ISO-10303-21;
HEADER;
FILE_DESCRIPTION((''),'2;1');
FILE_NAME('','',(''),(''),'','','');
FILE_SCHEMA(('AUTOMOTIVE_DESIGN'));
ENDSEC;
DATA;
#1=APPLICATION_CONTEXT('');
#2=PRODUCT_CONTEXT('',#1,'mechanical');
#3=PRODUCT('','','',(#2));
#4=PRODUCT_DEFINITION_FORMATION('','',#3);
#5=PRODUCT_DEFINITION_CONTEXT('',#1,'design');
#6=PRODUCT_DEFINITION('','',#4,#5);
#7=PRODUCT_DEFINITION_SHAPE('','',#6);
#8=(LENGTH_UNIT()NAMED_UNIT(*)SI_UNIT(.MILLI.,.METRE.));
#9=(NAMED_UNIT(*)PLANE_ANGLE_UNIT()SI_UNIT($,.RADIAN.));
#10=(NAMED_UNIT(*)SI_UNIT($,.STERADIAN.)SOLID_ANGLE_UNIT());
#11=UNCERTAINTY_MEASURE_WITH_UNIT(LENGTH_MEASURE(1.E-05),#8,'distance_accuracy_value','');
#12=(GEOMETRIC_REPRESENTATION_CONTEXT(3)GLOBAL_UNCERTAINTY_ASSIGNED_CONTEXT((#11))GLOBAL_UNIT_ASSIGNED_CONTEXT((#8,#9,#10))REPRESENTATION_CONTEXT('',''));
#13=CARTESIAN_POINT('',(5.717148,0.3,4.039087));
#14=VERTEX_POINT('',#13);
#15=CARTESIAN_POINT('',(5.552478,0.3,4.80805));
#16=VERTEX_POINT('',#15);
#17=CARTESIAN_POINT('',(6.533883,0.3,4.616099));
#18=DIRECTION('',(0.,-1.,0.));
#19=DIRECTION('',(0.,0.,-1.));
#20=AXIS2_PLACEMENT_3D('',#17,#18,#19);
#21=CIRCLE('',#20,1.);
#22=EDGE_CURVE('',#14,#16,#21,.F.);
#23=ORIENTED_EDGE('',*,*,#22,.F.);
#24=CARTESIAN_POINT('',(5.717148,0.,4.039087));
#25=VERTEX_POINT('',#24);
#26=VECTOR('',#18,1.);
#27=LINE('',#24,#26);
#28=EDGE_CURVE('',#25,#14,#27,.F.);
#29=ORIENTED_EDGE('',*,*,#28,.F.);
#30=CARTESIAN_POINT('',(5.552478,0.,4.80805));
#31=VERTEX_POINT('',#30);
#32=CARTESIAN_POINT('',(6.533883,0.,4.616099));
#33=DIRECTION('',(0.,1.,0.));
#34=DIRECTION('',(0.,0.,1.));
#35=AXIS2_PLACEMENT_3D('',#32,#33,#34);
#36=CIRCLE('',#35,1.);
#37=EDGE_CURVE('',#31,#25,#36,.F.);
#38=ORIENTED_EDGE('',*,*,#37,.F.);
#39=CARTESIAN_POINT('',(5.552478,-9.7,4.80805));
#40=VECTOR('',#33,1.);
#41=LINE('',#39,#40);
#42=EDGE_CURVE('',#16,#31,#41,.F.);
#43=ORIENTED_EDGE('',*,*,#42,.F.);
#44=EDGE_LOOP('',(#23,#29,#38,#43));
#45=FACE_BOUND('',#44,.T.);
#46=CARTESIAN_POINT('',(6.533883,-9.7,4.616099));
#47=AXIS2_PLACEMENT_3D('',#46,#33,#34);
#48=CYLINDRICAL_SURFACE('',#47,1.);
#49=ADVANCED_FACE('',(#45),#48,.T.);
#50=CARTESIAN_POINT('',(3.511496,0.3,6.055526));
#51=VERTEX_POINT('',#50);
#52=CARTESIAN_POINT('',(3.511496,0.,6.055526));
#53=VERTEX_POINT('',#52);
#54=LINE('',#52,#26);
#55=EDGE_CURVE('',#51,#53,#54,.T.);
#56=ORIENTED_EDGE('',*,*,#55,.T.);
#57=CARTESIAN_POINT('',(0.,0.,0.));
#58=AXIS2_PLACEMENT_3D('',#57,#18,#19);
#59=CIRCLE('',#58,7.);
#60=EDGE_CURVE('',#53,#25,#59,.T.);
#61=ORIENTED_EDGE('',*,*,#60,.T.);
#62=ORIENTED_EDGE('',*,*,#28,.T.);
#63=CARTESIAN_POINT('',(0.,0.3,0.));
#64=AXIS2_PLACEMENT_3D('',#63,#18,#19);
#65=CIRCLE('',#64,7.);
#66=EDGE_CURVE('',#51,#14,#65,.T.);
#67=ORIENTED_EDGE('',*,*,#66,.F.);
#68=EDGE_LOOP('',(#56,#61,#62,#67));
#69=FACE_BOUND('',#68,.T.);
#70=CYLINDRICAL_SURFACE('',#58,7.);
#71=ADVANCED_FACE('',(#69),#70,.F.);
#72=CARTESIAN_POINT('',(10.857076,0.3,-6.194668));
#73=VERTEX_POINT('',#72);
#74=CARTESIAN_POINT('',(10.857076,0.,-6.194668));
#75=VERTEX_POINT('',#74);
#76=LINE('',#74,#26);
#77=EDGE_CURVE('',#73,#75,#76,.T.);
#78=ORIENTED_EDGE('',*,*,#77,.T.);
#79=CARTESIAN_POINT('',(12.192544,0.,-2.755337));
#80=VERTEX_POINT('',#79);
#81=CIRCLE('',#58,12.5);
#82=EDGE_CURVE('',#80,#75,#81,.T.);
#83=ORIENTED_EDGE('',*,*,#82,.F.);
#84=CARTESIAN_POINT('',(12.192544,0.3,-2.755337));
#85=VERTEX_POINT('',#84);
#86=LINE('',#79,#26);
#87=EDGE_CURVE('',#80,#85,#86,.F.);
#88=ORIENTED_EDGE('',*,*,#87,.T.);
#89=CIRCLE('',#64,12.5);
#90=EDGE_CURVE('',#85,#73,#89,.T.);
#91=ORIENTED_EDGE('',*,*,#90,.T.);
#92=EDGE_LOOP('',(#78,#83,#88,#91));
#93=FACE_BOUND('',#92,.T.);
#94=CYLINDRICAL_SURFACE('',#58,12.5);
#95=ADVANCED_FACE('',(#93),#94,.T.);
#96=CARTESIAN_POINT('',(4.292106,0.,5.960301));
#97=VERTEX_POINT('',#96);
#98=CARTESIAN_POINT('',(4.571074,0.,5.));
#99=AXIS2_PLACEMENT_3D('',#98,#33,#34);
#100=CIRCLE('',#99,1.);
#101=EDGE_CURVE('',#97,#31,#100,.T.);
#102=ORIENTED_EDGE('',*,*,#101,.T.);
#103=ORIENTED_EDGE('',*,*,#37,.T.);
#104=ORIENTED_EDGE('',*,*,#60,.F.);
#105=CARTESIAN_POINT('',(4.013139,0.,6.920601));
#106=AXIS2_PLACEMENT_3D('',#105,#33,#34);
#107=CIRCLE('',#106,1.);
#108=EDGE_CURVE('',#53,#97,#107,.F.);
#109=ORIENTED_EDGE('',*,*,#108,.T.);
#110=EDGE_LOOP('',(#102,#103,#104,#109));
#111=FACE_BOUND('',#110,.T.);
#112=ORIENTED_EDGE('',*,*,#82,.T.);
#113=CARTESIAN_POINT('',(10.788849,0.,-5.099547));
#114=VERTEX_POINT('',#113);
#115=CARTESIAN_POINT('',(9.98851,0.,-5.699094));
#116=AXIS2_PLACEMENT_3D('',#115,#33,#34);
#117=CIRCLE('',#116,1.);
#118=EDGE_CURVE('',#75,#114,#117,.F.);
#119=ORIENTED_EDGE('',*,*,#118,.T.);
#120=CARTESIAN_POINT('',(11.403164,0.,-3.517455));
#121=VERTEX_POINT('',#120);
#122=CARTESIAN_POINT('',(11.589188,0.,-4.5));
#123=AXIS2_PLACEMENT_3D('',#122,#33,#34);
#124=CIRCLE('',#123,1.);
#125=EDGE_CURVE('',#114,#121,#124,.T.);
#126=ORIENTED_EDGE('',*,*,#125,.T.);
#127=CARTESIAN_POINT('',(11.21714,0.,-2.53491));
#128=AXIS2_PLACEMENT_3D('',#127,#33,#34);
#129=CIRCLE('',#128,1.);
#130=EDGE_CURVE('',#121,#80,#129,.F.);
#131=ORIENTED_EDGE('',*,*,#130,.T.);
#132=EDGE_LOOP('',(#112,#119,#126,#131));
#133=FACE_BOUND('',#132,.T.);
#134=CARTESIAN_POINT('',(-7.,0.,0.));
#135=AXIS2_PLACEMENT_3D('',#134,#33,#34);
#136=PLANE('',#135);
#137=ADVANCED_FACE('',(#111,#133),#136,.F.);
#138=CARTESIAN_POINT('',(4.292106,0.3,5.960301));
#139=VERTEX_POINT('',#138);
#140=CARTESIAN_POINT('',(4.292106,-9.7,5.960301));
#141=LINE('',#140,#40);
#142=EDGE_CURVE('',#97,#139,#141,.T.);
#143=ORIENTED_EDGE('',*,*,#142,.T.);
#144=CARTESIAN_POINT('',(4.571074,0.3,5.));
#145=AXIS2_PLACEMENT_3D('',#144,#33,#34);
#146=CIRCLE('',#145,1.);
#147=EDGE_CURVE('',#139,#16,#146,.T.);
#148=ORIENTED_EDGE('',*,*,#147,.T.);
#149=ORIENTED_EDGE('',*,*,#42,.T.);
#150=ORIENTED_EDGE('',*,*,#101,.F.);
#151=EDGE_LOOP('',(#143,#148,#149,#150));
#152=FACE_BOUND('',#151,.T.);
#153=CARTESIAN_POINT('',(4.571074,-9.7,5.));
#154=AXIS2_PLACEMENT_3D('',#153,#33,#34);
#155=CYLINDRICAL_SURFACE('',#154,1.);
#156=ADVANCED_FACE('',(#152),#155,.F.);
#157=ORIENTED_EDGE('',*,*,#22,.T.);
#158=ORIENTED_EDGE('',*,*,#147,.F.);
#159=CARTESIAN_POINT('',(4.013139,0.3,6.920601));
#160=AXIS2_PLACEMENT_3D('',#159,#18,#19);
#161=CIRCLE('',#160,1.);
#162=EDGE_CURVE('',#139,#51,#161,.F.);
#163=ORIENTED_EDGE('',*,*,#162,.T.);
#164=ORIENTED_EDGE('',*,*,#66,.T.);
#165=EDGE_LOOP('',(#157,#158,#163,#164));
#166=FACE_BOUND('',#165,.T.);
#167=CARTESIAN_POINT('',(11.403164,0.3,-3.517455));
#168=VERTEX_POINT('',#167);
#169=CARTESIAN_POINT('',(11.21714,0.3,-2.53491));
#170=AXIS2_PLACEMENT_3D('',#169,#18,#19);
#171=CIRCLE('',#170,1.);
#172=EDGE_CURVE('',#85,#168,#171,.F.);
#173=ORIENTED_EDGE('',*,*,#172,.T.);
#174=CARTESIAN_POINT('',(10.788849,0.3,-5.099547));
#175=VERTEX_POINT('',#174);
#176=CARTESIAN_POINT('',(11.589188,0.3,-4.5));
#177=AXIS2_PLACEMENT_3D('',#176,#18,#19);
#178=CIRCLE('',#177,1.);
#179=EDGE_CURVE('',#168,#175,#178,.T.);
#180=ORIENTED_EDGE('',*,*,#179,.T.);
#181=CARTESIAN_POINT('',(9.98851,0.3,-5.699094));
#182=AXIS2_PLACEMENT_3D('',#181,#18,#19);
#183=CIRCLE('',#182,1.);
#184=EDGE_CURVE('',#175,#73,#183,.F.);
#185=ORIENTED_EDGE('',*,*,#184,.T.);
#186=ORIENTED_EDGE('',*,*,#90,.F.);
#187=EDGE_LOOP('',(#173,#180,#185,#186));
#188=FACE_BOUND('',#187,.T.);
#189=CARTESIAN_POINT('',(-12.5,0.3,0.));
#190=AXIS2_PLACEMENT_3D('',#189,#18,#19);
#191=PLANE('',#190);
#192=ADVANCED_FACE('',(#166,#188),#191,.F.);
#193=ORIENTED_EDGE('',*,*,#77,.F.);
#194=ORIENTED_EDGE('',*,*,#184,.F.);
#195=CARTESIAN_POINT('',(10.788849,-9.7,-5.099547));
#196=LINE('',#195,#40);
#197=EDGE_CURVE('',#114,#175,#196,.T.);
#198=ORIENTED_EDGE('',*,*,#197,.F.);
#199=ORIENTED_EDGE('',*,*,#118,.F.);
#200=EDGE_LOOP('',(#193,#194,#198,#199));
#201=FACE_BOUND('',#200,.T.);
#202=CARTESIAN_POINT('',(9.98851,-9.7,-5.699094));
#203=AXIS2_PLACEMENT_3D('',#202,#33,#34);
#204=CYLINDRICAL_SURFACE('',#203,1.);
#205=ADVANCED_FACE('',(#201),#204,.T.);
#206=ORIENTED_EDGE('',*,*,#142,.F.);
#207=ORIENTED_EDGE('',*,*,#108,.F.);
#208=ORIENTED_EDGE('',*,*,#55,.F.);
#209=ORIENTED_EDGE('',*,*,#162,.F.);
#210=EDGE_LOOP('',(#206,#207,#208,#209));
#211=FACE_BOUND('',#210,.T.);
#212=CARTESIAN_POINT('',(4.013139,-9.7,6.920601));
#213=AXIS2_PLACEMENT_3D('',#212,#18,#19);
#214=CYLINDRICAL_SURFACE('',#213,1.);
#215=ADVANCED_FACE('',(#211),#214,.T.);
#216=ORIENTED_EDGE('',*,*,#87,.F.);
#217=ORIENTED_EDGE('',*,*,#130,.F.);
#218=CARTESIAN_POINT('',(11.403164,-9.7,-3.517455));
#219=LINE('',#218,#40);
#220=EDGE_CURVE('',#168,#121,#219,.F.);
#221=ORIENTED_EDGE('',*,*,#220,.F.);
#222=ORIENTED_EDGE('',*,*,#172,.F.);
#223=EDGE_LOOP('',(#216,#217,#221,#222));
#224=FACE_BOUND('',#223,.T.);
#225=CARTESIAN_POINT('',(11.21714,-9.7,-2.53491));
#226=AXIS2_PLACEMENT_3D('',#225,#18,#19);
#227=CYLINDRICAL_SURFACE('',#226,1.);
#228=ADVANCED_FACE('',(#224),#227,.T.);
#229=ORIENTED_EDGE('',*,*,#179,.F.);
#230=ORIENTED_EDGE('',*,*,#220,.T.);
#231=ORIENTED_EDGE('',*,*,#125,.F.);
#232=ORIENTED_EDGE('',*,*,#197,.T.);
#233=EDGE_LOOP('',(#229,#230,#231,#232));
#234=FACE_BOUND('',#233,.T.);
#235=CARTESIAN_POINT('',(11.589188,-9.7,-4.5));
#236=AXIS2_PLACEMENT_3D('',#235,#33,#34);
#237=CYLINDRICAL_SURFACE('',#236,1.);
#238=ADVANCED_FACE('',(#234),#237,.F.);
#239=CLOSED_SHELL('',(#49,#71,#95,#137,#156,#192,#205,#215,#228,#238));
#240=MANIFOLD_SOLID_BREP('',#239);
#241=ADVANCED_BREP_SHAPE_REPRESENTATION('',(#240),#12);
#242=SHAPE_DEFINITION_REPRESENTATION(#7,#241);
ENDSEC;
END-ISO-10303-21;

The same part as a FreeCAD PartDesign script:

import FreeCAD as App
import Part
import Sketcher
Q = App.Units.Quantity


def edges_at(feature, points):
    """Names of the edges that pass closest to the given points."""
    edges = feature.Shape.Edges
    near = lambda p: min(range(len(edges)), key=lambda i: edges[i].distToShape(Part.Vertex(*p))[0])
    return sorted({f"Edge{near(p) + 1}" for p in points})


def add_polygon(sketch, points):
    """Adds a closed chain of lines whose ends are joined by coincident constraints."""
    first, n = sketch.GeometryCount, len(points)
    for a, b in zip(points, points[1:] + points[:1]):
        sketch.addGeometry(Part.LineSegment(App.Vector(*a, 0), App.Vector(*b, 0)), False)
    for i in range(n):
        sketch.addConstraint(Sketcher.Constraint("Coincident", first + i, 2, first + (i + 1) % n, 1))

doc = App.newDocument("Part")
params = doc.addObject("Spreadsheet::Sheet", "Params")
for row, (alias, value) in enumerate([
    ("sketch1_width", "5.5 mm"),
    ("sketch1_height", "0.3 mm"),
    ("revolution_angle", "360 deg"),
    ("sketch2_diameter", "2 mm"),
    ("pocket1_length", "10 mm"),
    ("fillet_radius", "1 mm"),
], start=1):
    params.set(f"A{row}", alias)
    params.set(f"B{row}", "=" + value)
    params.setAlias(f"B{row}", alias)

body = doc.addObject("PartDesign::Body", "Body")

# Sketch on XY plane
sketch1 = doc.addObject("Sketcher::SketchObject", "Sketch")
body.addObject(sketch1)
sketch1.AttachmentSupport = (doc.XY_Plane, [""])
sketch1.MapMode = "FlatFace"
add_polygon(sketch1, [(-12.5, 0.3), (-12.5, 0), (-7, 0), (-7, 0.3)])  # lines 0-3
sketch1.addConstraint([
    Sketcher.Constraint("Vertical", 0),
    Sketcher.Constraint("Horizontal", 1),
    Sketcher.Constraint("Vertical", 2),
    Sketcher.Constraint("Horizontal", 3),
    Sketcher.Constraint("PointOnObject", 0, 2, -1),
    Sketcher.Constraint("DistanceX", 1, 1, 1, 2, Q("5.5 mm")),
    Sketcher.Constraint("DistanceY", 0, 2, 0, 1, Q("0.3 mm")),
    Sketcher.Constraint("DistanceX", 1, 2, -1, 1, Q("7 mm")),
])
sketch1.setExpression("Constraints[9]", "Params.sketch1_width")
sketch1.setExpression("Constraints[10]", "Params.sketch1_height")
revolution = doc.addObject("PartDesign::Revolution", "Revolution")
body.addObject(revolution)
revolution.Profile = sketch1
revolution.ReferenceAxis = (sketch1, ["V_Axis"])
revolution.setExpression("Angle", "Params.revolution_angle")

# Sketch on XZ plane
sketch2 = doc.addObject("Sketcher::SketchObject", "Sketch001")
body.addObject(sketch2)
sketch2.AttachmentSupport = (doc.XZ_Plane, [""])
sketch2.MapMode = "FlatFace"
sketch2.AttachmentOffset = App.Placement(App.Vector(0, 0, -0.3), App.Rotation())
sketch2.addGeometry([
    Part.Circle(App.Vector(4.571074, 5, 0), App.Vector(0, 0, 1), 1),
    Part.Circle(App.Vector(11.589188, -4.5, 0), App.Vector(0, 0, 1), 1),
], False)
sketch2.addConstraint([
    Sketcher.Constraint("Equal", 0, 1),
    Sketcher.Constraint("Diameter", 0, Q("2 mm")),
    Sketcher.Constraint("DistanceY", -1, 1, 0, 3, Q("5 mm")),
    Sketcher.Constraint("DistanceY", 1, 3, -1, 1, Q("4.5 mm")),
    Sketcher.Constraint("DistanceX", -1, 1, 1, 3, Q("11.589188 mm")),
    Sketcher.Constraint("DistanceX", -1, 1, 0, 3, Q("4.571074 mm")),
])
sketch2.setExpression("Constraints[1]", "Params.sketch2_diameter")
pocket1 = doc.addObject("PartDesign::Pocket", "Pocket")
body.addObject(pocket1)
pocket1.Profile = sketch2
pocket1.setExpression("Length", "Params.pocket1_length")
pocket1.Reversed = True
doc.recompute()

fillet = doc.addObject("PartDesign::Fillet", "Fillet")
body.addObject(fillet)
fillet.Base = (pocket1, edges_at(pocket1, [
    (5.405, 0.15, 4.448),
    (3.947, 0.15, 5.781),
    (11.977, 0.15, -3.578),
    (11.253, 0.15, -5.442),
]))
fillet.setExpression("Radius", "Params.fillet_radius")

doc.recompute()
